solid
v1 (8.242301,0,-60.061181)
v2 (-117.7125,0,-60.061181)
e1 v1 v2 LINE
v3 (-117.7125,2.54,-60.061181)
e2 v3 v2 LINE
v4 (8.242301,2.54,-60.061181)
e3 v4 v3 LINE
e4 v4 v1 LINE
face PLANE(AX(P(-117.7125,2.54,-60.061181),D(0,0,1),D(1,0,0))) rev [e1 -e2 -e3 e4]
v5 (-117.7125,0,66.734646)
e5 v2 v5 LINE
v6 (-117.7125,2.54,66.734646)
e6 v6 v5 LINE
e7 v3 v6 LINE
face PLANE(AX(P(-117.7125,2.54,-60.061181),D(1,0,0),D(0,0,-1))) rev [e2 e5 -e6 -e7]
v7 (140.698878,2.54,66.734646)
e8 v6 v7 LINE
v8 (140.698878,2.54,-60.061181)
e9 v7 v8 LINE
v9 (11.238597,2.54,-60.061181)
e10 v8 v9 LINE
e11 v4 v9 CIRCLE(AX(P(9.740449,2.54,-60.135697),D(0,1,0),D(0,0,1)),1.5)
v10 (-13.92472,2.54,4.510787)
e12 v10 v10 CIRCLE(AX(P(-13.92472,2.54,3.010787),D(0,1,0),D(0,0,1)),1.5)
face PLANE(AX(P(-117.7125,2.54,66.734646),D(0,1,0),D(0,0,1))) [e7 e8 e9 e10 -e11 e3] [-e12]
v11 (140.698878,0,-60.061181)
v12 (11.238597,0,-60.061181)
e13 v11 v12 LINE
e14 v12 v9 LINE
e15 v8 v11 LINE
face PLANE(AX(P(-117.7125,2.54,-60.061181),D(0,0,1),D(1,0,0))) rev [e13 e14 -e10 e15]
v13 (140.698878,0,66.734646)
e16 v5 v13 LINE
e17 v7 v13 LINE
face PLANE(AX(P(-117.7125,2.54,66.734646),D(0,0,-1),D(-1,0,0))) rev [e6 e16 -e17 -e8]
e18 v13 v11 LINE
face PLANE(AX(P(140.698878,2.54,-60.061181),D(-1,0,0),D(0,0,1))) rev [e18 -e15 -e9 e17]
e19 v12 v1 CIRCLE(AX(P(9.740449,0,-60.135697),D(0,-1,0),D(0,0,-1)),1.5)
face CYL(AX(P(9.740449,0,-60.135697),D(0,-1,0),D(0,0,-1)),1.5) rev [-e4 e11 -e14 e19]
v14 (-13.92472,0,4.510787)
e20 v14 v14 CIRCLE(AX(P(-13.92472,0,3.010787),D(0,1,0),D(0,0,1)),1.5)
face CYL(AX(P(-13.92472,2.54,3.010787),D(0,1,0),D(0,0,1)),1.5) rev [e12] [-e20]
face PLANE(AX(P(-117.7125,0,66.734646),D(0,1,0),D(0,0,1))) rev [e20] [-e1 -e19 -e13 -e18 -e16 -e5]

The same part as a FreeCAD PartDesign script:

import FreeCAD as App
import Part
import Sketcher
from FreeCAD import Vector
Q = App.Units.Quantity


def add_polygon(sketch, points):
    """Adds a closed chain of lines whose ends are joined by coincident constraints."""
    first, n = sketch.GeometryCount, len(points)
    for a, b in zip(points, points[1:] + points[:1]):
        sketch.addGeometry(Part.LineSegment(App.Vector(*a, 0), App.Vector(*b, 0)), False)
    for i in range(n):
        sketch.addConstraint(Sketcher.Constraint("Coincident", first + i, 2, first + (i + 1) % n, 1))

doc = App.newDocument("Part")
body = doc.addObject("PartDesign::Body", "Body")

# Sketch on XZ plane
sketch1 = body.newObject("Sketcher::SketchObject", "Sketch")
sketch1.AttachmentSupport = (doc.getObject("XZ_Plane"), [""])
sketch1.MapMode = "FlatFace"
add_polygon(sketch1, [(-117.7125, -60.061181), (-117.7125, 66.734646), (140.698878, 66.734646), (140.698878, -60.061181)])  # lines 0-3
sketch1.addConstraint([
    Sketcher.Constraint("Vertical", 0),
    Sketcher.Constraint("Horizontal", 1),
    Sketcher.Constraint("Vertical", 2),
    Sketcher.Constraint("Horizontal", 3),
    Sketcher.Constraint("DistanceX", 1, 1, 1, 2, Q("258.411378 mm")),
    Sketcher.Constraint("DistanceX", 0, 2, -1, 1, Q("117.7125 mm")),
    Sketcher.Constraint("DistanceY", 0, 1, 0, 2, Q("126.795827 mm")),
    Sketcher.Constraint("DistanceY", 2, 2, -1, 1, Q("60.061181 mm")),
])
pad1 = body.newObject("PartDesign::Pad", "Pad")
pad1.Profile = sketch1
pad1.Length = Q("0.1 in")
pad1.Reversed = True

# Sketch on XZ plane
sketch2 = body.newObject("Sketcher::SketchObject", "Sketch001")
sketch2.AttachmentSupport = (doc.getObject("XZ_Plane"), [""])
sketch2.MapMode = "FlatFace"
sketch2.AttachmentOffset = App.Placement(Vector(0, 0, -0.1 * 25.4), App.Rotation())
sketch2.addGeometry(Part.Circle(Vector(-13.92472, 3.010787, 0), Vector(0, 0, 1), 1.5), False)
sketch2.addConstraint([
    Sketcher.Constraint("Diameter", 0, Q("3 mm")),
    Sketcher.Constraint("DistanceX", 0, 3, -1, 1, Q("13.92472 mm")),
    Sketcher.Constraint("DistanceY", -1, 1, 0, 3, Q("3.010787 mm")),
])
doc.recompute()
hole = body.newObject("PartDesign::Hole", "Hole")
hole.Profile = sketch2
hole.ThreadType = "None"
hole.Diameter = 3
hole.DepthType = "Dimension"
hole.Depth = Q("1 in")
hole.DrillPoint = "Angled"
hole.DrillPointAngle = 118
hole.Reversed = True

# Sketch on XZ plane
sketch3 = body.newObject("Sketcher::SketchObject", "Sketch002")
sketch3.AttachmentSupport = (doc.getObject("XZ_Plane"), [""])
sketch3.MapMode = "FlatFace"
sketch3.addGeometry(Part.Circle(Vector(9.740449, -60.135697, 0), Vector(0, 0, 1), 1.5), False)
sketch3.addConstraint([
    Sketcher.Constraint("Diameter", 0, Q("3 mm")),
    Sketcher.Constraint("DistanceX", -1, 1, 0, 3, Q("9.740449 mm")),
    Sketcher.Constraint("DistanceY", 0, 3, -1, 1, Q("60.135697 mm")),
])
doc.recompute()
hole2 = body.newObject("PartDesign::Hole", "Hole001")
hole2.Profile = sketch3
hole2.ThreadType = "None"
hole2.Diameter = 3
hole2.DepthType = "Dimension"
hole2.Depth = Q("1 in")
hole2.DrillPoint = "Angled"
hole2.DrillPointAngle = 118

doc.recompute()
